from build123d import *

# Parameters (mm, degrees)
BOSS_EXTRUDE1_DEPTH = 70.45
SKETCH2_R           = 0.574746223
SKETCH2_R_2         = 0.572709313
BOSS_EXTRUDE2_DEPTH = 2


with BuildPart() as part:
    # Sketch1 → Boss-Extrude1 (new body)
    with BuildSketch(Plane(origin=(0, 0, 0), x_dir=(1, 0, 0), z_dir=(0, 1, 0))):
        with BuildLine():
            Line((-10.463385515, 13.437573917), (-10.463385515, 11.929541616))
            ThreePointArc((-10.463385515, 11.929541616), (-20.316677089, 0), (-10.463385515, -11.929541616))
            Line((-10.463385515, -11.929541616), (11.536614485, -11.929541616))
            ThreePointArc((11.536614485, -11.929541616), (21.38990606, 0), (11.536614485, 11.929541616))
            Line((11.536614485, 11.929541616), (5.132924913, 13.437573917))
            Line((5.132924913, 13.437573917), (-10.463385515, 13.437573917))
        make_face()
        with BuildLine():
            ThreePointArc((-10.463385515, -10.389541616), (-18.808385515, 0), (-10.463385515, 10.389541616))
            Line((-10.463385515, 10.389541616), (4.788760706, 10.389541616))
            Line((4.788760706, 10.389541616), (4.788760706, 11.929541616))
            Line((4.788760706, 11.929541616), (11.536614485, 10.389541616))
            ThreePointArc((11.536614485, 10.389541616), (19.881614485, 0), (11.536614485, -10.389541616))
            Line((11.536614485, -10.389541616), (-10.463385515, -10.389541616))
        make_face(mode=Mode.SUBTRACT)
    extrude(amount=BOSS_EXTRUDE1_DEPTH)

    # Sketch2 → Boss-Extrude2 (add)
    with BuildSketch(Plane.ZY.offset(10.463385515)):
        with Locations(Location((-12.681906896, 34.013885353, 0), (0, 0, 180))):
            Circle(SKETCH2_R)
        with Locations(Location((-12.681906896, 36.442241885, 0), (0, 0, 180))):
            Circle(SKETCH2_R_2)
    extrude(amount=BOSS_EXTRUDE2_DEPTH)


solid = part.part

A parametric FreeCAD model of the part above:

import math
import FreeCAD as App
import Part
import Sketcher
from FreeCAD import Vector

doc = App.newDocument("Part")
body = doc.addObject("PartDesign::Body", "Body")

# Sketch on XZ plane
sketch1 = body.newObject("Sketcher::SketchObject", "Sketch")
sketch1.AttachmentSupport = (doc.getObject("XZ_Plane"), [""])
sketch1.MapMode = "FlatFace"
sketch1.addGeometry(Part.LineSegment(Vector(-10.5, -13.4, 0), Vector(-10.5, -11.9, 0)), False)
sketch1.addGeometry(Part.ArcOfCircle(Part.Circle(Vector(-8.2, 0, 0), Vector(0, 0, 1), 12.1), math.radians(101), math.radians(259)), False)
sketch1.addGeometry(Part.LineSegment(Vector(-10.5, 11.9, 0), Vector(11.5, 11.9, 0)), False)
sketch1.addGeometry(Part.ArcOfCircle(Part.Circle(Vector(9.2, 0, 0), Vector(0, 0, 1), 12.1), math.radians(-79), math.radians(79)), False)
sketch1.addGeometry(Part.LineSegment(Vector(11.5, -11.9, 0), Vector(5.1, -13.4, 0)), False)
sketch1.addGeometry(Part.LineSegment(Vector(5.1, -13.4, 0), Vector(-10.5, -13.4, 0)), False)
sketch1.addGeometry(Part.LineSegment(Vector(11.5, 10.4, 0), Vector(-10.5, 10.4, 0)), False)
sketch1.addGeometry(Part.ArcOfCircle(Part.Circle(Vector(-8.2, 0, 0), Vector(0, 0, 1), 10.6), math.radians(102), math.radians(258)), False)
sketch1.addGeometry(Part.LineSegment(Vector(-10.5, -10.4, 0), Vector(4.8, -10.4, 0)), False)
sketch1.addGeometry(Part.LineSegment(Vector(4.8, -10.4, 0), Vector(4.8, -11.9, 0)), False)
sketch1.addGeometry(Part.LineSegment(Vector(4.8, -11.9, 0), Vector(11.5, -10.4, 0)), False)
sketch1.addGeometry(Part.ArcOfCircle(Part.Circle(Vector(9.2, 0, 0), Vector(0, 0, 1), 10.6), math.radians(-78), math.radians(78)), False)
sketch1.addConstraint(Sketcher.Constraint("Coincident", 0, 2, 1, 2))
sketch1.addConstraint(Sketcher.Constraint("Coincident", 1, 1, 2, 1))
sketch1.addConstraint(Sketcher.Constraint("Coincident", 2, 2, 3, 2))
sketch1.addConstraint(Sketcher.Constraint("Coincident", 3, 1, 4, 1))
sketch1.addConstraint(Sketcher.Constraint("Coincident", 4, 2, 5, 1))
sketch1.addConstraint(Sketcher.Constraint("Coincident", 5, 2, 0, 1))
sketch1.addConstraint(Sketcher.Constraint("Coincident", 6, 2, 7, 1))
sketch1.addConstraint(Sketcher.Constraint("Coincident", 7, 2, 8, 1))
sketch1.addConstraint(Sketcher.Constraint("Coincident", 8, 2, 9, 1))
sketch1.addConstraint(Sketcher.Constraint("Coincident", 9, 2, 10, 1))
sketch1.addConstraint(Sketcher.Constraint("Coincident", 10, 2, 11, 1))
sketch1.addConstraint(Sketcher.Constraint("Coincident", 11, 2, 6, 1))
sketch1.addConstraint(Sketcher.Constraint("Vertical", 0))
sketch1.addConstraint(Sketcher.Constraint("Horizontal", 2))
sketch1.addConstraint(Sketcher.Constraint("Horizontal", 5))
sketch1.addConstraint(Sketcher.Constraint("Horizontal", 6))
sketch1.addConstraint(Sketcher.Constraint("Horizontal", 8))
sketch1.addConstraint(Sketcher.Constraint("Vertical", 9))
sketch1.addConstraint(Sketcher.Constraint("Coincident", 7, 3, 1, 3))
sketch1.addConstraint(Sketcher.Constraint("Coincident", 11, 3, 3, 3))
sketch1.addConstraint(Sketcher.Constraint("Equal", 1, 3))
sketch1.addConstraint(Sketcher.Constraint("Equal", 7, 11))
sketch1.addConstraint(Sketcher.Constraint("Symmetric", 0, 2, 1, 1, -1))
sketch1.addConstraint(Sketcher.Constraint("Symmetric", 2, 2, 3, 1, -1))
sketch1.addConstraint(Sketcher.Constraint("Horizontal", 3, 1, 9, 2))
sketch1.addConstraint(Sketcher.Constraint("Horizontal", 8, 2, 10, 2))
sketch1.addConstraint(Sketcher.Constraint("Vertical", 5, 2, 6, 2))
sketch1.addConstraint(Sketcher.Constraint("Vertical", 6, 2, 7, 2))
sketch1.addConstraint(Sketcher.Constraint("DistanceX", 2, 1, 2, 2, 22.0))
sketch1.addConstraint(Sketcher.Constraint("Radius", 7, 10.64))
sketch1.addConstraint(Sketcher.Constraint("DistanceY", 9, 2, 9, 1, 1.54))
sketch1.addConstraint(Sketcher.Constraint("Radius", 1, 12.148292))
sketch1.addConstraint(Sketcher.Constraint("DistanceX", 5, 2, 5, 1, 15.59631))
sketch1.addConstraint(Sketcher.Constraint("Distance", 4, 6.57886))
sketch1.addConstraint(Sketcher.Constraint("DistanceX", 8, 1, 8, 2, 15.252146))
sketch1.addConstraint(Sketcher.Constraint("DistanceX", -1, 1, 8, 2, 4.788761))
pad1 = body.newObject("PartDesign::Pad", "Pad")
pad1.Profile = sketch1
pad1.Length = 70.45
pad1.Reversed = True

# Sketch on YZ plane
sketch2 = body.newObject("Sketcher::SketchObject", "Sketch001")
sketch2.AttachmentSupport = (doc.getObject("YZ_Plane"), [""])
sketch2.MapMode = "FlatFace"
sketch2.AttachmentOffset = App.Placement(Vector(0, 0, -10.463386), App.Rotation())
sketch2.addGeometry(Part.Circle(Vector(34, -12.7, 0), Vector(0, 0, 1), 0.6), False)
sketch2.addGeometry(Part.Circle(Vector(36.4, -12.7, 0), Vector(0, 0, 1), 0.6), False)
sketch2.addConstraint(Sketcher.Constraint("Horizontal", 0, 3, 1, 3))
sketch2.addConstraint(Sketcher.Constraint("Diameter", 1, 1.145419))
sketch2.addConstraint(Sketcher.Constraint("Diameter", 0, 1.149492))
sketch2.addConstraint(Sketcher.Constraint("DistanceX", -1, 1, 1, 3, 36.442242))
sketch2.addConstraint(Sketcher.Constraint("DistanceX", -1, 1, 0, 3, 34.013885))
sketch2.addConstraint(Sketcher.Constraint("DistanceY", 0, 3, -1, 1, 12.681907))
pad2 = body.newObject("PartDesign::Pad", "Pad001")
pad2.Profile = sketch2
pad2.Length = 2
pad2.Reversed = True

doc.recompute()
